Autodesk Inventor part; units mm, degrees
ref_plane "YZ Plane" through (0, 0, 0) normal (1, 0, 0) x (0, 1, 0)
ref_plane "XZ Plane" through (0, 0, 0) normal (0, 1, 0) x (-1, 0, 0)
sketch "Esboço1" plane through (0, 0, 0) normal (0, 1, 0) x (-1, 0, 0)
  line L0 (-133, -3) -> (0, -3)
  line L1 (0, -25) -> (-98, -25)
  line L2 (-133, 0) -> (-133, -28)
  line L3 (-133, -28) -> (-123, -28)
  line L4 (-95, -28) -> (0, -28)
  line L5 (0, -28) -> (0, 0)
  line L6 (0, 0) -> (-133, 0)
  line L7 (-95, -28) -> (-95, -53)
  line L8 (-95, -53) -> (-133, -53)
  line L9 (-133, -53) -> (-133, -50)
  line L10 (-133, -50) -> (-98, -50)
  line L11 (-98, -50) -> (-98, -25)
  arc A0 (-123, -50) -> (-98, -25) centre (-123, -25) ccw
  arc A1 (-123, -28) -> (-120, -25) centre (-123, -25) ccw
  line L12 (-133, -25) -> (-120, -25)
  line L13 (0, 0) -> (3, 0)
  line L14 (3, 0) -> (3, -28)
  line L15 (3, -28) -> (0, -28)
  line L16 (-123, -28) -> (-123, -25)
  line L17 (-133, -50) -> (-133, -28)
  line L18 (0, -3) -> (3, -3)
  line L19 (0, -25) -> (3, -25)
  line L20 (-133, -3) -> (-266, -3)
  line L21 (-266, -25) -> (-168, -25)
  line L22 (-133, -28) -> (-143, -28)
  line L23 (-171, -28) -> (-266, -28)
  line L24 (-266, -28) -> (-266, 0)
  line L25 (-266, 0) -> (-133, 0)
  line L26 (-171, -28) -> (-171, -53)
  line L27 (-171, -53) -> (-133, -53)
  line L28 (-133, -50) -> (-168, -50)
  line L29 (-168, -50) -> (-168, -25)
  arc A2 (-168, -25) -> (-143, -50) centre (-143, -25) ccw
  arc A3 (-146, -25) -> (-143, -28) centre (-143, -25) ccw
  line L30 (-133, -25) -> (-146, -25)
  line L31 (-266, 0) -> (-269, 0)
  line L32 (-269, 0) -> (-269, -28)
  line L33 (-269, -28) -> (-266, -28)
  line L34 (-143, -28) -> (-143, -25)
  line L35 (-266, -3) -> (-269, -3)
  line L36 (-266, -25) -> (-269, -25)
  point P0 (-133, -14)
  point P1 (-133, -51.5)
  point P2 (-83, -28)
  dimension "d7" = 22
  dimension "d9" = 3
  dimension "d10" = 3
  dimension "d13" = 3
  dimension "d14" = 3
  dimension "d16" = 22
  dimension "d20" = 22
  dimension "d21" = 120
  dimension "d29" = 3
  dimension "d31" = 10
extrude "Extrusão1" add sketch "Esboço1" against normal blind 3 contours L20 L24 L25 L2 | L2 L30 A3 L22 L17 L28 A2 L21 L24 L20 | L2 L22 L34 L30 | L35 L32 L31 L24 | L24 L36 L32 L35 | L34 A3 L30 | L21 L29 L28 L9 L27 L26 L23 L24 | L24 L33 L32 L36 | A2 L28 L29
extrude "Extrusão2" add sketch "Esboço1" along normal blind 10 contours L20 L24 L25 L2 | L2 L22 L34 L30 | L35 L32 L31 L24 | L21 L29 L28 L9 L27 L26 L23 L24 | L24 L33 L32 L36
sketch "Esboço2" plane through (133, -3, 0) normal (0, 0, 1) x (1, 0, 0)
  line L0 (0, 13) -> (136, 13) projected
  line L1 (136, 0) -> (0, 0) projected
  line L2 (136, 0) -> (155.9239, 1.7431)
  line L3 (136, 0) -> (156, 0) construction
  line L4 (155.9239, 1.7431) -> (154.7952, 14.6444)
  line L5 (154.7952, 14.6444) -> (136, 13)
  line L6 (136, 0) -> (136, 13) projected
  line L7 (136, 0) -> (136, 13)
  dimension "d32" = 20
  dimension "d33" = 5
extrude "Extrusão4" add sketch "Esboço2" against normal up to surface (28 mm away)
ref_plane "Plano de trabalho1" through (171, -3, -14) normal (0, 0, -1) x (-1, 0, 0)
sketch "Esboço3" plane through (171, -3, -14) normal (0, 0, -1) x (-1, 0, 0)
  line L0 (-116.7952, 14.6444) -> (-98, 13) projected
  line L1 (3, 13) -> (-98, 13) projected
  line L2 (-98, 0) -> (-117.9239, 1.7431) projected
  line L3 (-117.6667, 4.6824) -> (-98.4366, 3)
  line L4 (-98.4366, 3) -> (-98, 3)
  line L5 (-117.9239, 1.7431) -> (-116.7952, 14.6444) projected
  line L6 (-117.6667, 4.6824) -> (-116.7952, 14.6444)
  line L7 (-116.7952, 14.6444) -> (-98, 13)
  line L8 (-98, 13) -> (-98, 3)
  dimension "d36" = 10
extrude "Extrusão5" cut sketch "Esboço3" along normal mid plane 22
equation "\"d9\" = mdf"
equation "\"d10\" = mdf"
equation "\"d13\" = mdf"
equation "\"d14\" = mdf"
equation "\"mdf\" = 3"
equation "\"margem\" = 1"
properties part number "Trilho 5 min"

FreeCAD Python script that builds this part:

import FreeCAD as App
import Part
import Sketcher

V = App.Vector
Q = App.Units.Quantity

doc = App.newDocument("Part")
params = doc.addObject("Spreadsheet::Sheet", "Params")
for row, (alias, value) in enumerate([
    ("sketch1_width", "136 mm"),
    ("sketch1_width2", "98 mm"),
    ("sketch1_height", "28 mm"),
    ("sketch1_height2", "25 mm"),
    ("pad1_length", "3 mm"),
    ("sketch2_width", "10 mm"),
    ("sketch2_height", "3 mm"),
    ("sketch2_width2", "136 mm"),
    ("sketch2_width3", "101 mm"),
    ("pad2_length", "10 mm"),
    ("sketch3_length", "20 mm"),
    ("sketch3_height", "13 mm"),
    ("pad3_length", "28 mm"),
    ("sketch4_height", "10 mm"),
    ("sketch4_length", "10 mm"),
    ("pocket1_length", "22 mm"),
], start=1):
    params.set(f"A{row}", alias)
    params.set(f"B{row}", "=" + value)
    params.setAlias(f"B{row}", alias)

body = doc.addObject("PartDesign::Body", "Body")

sketch1 = body.newObject("Sketcher::SketchObject", "Sketch")
sketch1.AttachmentSupport = (doc.getObject("XZ_Plane"), [""])
sketch1.MapMode = "FlatFace"
sketch1.addGeometry([
    Part.LineSegment(V(133, 0, 0), V(269, 0, 0)),
    Part.LineSegment(V(269, 0, 0), V(269, -28, 0)),
    Part.LineSegment(V(269, -28, 0), V(171, -28, 0)),
    Part.LineSegment(V(171, -28, 0), V(171, -53, 0)),
    Part.LineSegment(V(171, -53, 0), V(133, -53, 0)),
    Part.LineSegment(V(133, -53, 0), V(133, 0, 0)),
], False)
sketch1.addConstraint([
    Sketcher.Constraint("Coincident", 0, 2, 1, 1),
    Sketcher.Constraint("Coincident", 1, 2, 2, 1),
    Sketcher.Constraint("Coincident", 2, 2, 3, 1),
    Sketcher.Constraint("Coincident", 3, 2, 4, 1),
    Sketcher.Constraint("Coincident", 4, 2, 5, 1),
    Sketcher.Constraint("Coincident", 5, 2, 0, 1),
    Sketcher.Constraint("Horizontal", 0),
    Sketcher.Constraint("Vertical", 1),
    Sketcher.Constraint("Horizontal", 2),
    Sketcher.Constraint("Vertical", 3),
    Sketcher.Constraint("Horizontal", 4),
    Sketcher.Constraint("Vertical", 5),
    Sketcher.Constraint("PointOnObject", 0, 2, -1),
    Sketcher.Constraint("DistanceX", 0, 1, 0, 2, Q("136 mm")),
    Sketcher.Constraint("DistanceX", 2, 2, 2, 1, Q("98 mm")),
    Sketcher.Constraint("DistanceY", 1, 2, 1, 1, Q("28 mm")),
    Sketcher.Constraint("DistanceY", 3, 2, 3, 1, Q("25 mm")),
    Sketcher.Constraint("DistanceX", -1, 1, 0, 2, Q("269 mm")),
])
sketch1.setExpression("Constraints[13]", "Params.sketch1_width")
sketch1.setExpression("Constraints[14]", "Params.sketch1_width2")
sketch1.setExpression("Constraints[15]", "Params.sketch1_height")
sketch1.setExpression("Constraints[16]", "Params.sketch1_height2")
pad1 = body.newObject("PartDesign::Pad", "Pad")
pad1.Profile = sketch1
pad1.setExpression("Length", "Params.pad1_length")

sketch2 = body.newObject("Sketcher::SketchObject", "Sketch001")
sketch2.AttachmentSupport = (doc.getObject("XZ_Plane"), [""])
sketch2.MapMode = "FlatFace"
sketch2.addGeometry([
    Part.LineSegment(V(133, -3, 0), V(133, 0, 0)),
    Part.LineSegment(V(133, 0, 0), V(269, 0, 0)),
    Part.LineSegment(V(269, 0, 0), V(269, -3, 0)),
    Part.LineSegment(V(269, -3, 0), V(133, -3, 0)),
    Part.LineSegment(V(133, -28, 0), V(133, -25, 0)),
    Part.LineSegment(V(133, -25, 0), V(143, -25, 0)),
    Part.LineSegment(V(143, -25, 0), V(143, -28, 0)),
    Part.LineSegment(V(143, -28, 0), V(133, -28, 0)),
    Part.LineSegment(V(168, -25, 0), V(269, -25, 0)),
    Part.LineSegment(V(269, -25, 0), V(269, -28, 0)),
    Part.LineSegment(V(269, -28, 0), V(171, -28, 0)),
    Part.LineSegment(V(171, -28, 0), V(171, -53, 0)),
    Part.LineSegment(V(171, -53, 0), V(133, -53, 0)),
    Part.LineSegment(V(133, -53, 0), V(133, -50, 0)),
    Part.LineSegment(V(133, -50, 0), V(168, -50, 0)),
    Part.LineSegment(V(168, -50, 0), V(168, -25, 0)),
], False)
sketch2.addConstraint([
    Sketcher.Constraint("Coincident", 0, 2, 1, 1),
    Sketcher.Constraint("Coincident", 1, 2, 2, 1),
    Sketcher.Constraint("Coincident", 2, 2, 3, 1),
    Sketcher.Constraint("Coincident", 3, 2, 0, 1),
    Sketcher.Constraint("Coincident", 4, 2, 5, 1),
    Sketcher.Constraint("Coincident", 5, 2, 6, 1),
    Sketcher.Constraint("Coincident", 6, 2, 7, 1),
    Sketcher.Constraint("Coincident", 7, 2, 4, 1),
    Sketcher.Constraint("Coincident", 8, 2, 9, 1),
    Sketcher.Constraint("Coincident", 9, 2, 10, 1),
    Sketcher.Constraint("Coincident", 10, 2, 11, 1),
    Sketcher.Constraint("Coincident", 11, 2, 12, 1),
    Sketcher.Constraint("Coincident", 12, 2, 13, 1),
    Sketcher.Constraint("Coincident", 13, 2, 14, 1),
    Sketcher.Constraint("Coincident", 14, 2, 15, 1),
    Sketcher.Constraint("Coincident", 15, 2, 8, 1),
    Sketcher.Constraint("Vertical", 0),
    Sketcher.Constraint("Horizontal", 1),
    Sketcher.Constraint("Vertical", 2),
    Sketcher.Constraint("Horizontal", 3),
    Sketcher.Constraint("Vertical", 4),
    Sketcher.Constraint("Horizontal", 5),
    Sketcher.Constraint("Vertical", 6),
    Sketcher.Constraint("Horizontal", 7),
    Sketcher.Constraint("Horizontal", 8),
    Sketcher.Constraint("Vertical", 9),
    Sketcher.Constraint("Horizontal", 10),
    Sketcher.Constraint("Vertical", 11),
    Sketcher.Constraint("Horizontal", 12),
    Sketcher.Constraint("Vertical", 13),
    Sketcher.Constraint("Horizontal", 14),
    Sketcher.Constraint("Vertical", 15),
    Sketcher.Constraint("PointOnObject", 0, 2, -1),
    Sketcher.Constraint("Horizontal", 5, 2, 8, 2),
    Sketcher.Constraint("Horizontal", 7, 2, 9, 2),
    Sketcher.Constraint("Vertical", 3, 2, 4, 2),
    Sketcher.Constraint("Vertical", 2, 2, 8, 2),
    Sketcher.Constraint("Vertical", 7, 2, 12, 2),
    Sketcher.Constraint("Equal", 2, 4),
    Sketcher.Constraint("Equal", 9, 13),
    Sketcher.Constraint("DistanceX", 5, 1, 5, 2, Q("10 mm")),
    Sketcher.Constraint("DistanceY", 0, 1, 0, 2, Q("3 mm")),
    Sketcher.Constraint("DistanceY", 4, 2, 3, 2, Q("22 mm")),
    Sketcher.Constraint("DistanceY", 13, 2, 7, 2, Q("22 mm")),
    Sketcher.Constraint("DistanceX", 14, 2, 11, 2, Q("3 mm")),
    Sketcher.Constraint("DistanceX", 1, 1, 1, 2, Q("136 mm")),
    Sketcher.Constraint("DistanceX", 8, 1, 8, 2, Q("101 mm")),
    Sketcher.Constraint("DistanceX", -1, 1, 0, 2, Q("133 mm")),
])
sketch2.setExpression("Constraints[40]", "Params.sketch2_width")
sketch2.setExpression("Constraints[41]", "Params.sketch2_height")
sketch2.setExpression("Constraints[45]", "Params.sketch2_width2")
sketch2.setExpression("Constraints[46]", "Params.sketch2_width3")
pad2 = body.newObject("PartDesign::Pad", "Pad001")
pad2.Profile = sketch2
pad2.setExpression("Length", "Params.pad2_length")
pad2.Reversed = True

sketch3 = body.newObject("Sketcher::SketchObject", "Sketch002")
sketch3.AttachmentSupport = (doc.getObject("XY_Plane"), [""])
sketch3.MapMode = "FlatFace"
sketch3.addGeometry([
    Part.LineSegment(V(269, 10, 0), V(269, -3, 0)),
    Part.LineSegment(V(269, -3, 0), V(289, -1, 0)),
    Part.LineSegment(V(289, -1, 0), V(288, 12, 0)),
    Part.LineSegment(V(288, 12, 0), V(269, 10, 0)),
], False)
sketch3.addConstraint([
    Sketcher.Constraint("Coincident", 0, 2, 1, 1),
    Sketcher.Constraint("Coincident", 1, 2, 2, 1),
    Sketcher.Constraint("Coincident", 2, 2, 3, 1),
    Sketcher.Constraint("Coincident", 3, 2, 0, 1),
    Sketcher.Constraint("Vertical", 0),
    Sketcher.Constraint("Perpendicular", 1, 2),
    Sketcher.Constraint("Perpendicular", 2, 3),
    Sketcher.Constraint("Angle", 1, Q("5 deg")),
    Sketcher.Constraint("Distance", 1, Q("20 mm")),
    Sketcher.Constraint("DistanceY", 0, 2, 0, 1, Q("13 mm")),
    Sketcher.Constraint("DistanceX", -1, 1, 0, 2, Q("269 mm")),
    Sketcher.Constraint("DistanceY", 0, 2, -1, 1, Q("3 mm")),
])
sketch3.setExpression("Constraints[8]", "Params.sketch3_length")
sketch3.setExpression("Constraints[9]", "Params.sketch3_height")
pad3 = body.newObject("PartDesign::Pad", "Pad002")
pad3.Profile = sketch3
pad3.setExpression("Length", "Params.pad3_length")
pad3.Reversed = True

sketch4 = body.newObject("Sketcher::SketchObject", "Sketch003")
sketch4.AttachmentSupport = (doc.getObject("XY_Plane"), [""])
sketch4.MapMode = "FlatFace"
sketch4.AttachmentOffset = App.Placement(V(0, 0, -14), App.Rotation())
sketch4.addGeometry([
    Part.LineSegment(V(269, 10, 0), V(287.8, 11.64, 0)),
    Part.LineSegment(V(287.8, 11.64, 0), V(288.67, 1.68, 0)),
    Part.LineSegment(V(288.67, 1.68, 0), V(269.44, 0, 0)),
    Part.LineSegment(V(269.44, 0, 0), V(269, 0, 0)),
    Part.LineSegment(V(269, 0, 0), V(269, 10, 0)),
], False)
sketch4.addConstraint([
    Sketcher.Constraint("Coincident", 0, 2, 1, 1),
    Sketcher.Constraint("Coincident", 1, 2, 2, 1),
    Sketcher.Constraint("Coincident", 2, 2, 3, 1),
    Sketcher.Constraint("Coincident", 3, 2, 4, 1),
    Sketcher.Constraint("Coincident", 4, 2, 0, 1),
    Sketcher.Constraint("Horizontal", 3),
    Sketcher.Constraint("Vertical", 4),
    Sketcher.Constraint("PointOnObject", 2, 2, -1),
    Sketcher.Constraint("Perpendicular", 0, 1),
    Sketcher.Constraint("Perpendicular", 1, 2),
    Sketcher.Constraint("DistanceY", 4, 1, 4, 2, Q("10 mm")),
    Sketcher.Constraint("Distance", 1, Q("10 mm")),
    Sketcher.Constraint("Angle", 0, Q("5 deg")),
    Sketcher.Constraint("DistanceX", -1, 1, 3, 2, Q("269 mm")),
    Sketcher.Constraint("Distance", 0, Q("18.867 mm")),
])
sketch4.setExpression("Constraints[10]", "Params.sketch4_height")
sketch4.setExpression("Constraints[11]", "Params.sketch4_length")
pocket1 = body.newObject("PartDesign::Pocket", "Pocket")
pocket1.Profile = sketch4
pocket1.setExpression("Length", "Params.pocket1_length")
pocket1.Midplane = True

doc.recompute()
